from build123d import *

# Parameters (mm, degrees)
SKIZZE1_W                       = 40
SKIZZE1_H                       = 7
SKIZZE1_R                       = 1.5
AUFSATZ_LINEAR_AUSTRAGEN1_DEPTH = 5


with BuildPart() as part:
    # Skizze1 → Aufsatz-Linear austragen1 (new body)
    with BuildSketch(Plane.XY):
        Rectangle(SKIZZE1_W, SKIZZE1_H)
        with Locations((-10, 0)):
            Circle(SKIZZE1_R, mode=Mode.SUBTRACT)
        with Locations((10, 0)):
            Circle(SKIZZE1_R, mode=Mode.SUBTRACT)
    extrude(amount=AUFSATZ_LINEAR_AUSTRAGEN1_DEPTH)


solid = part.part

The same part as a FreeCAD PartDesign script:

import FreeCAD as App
import Part
import Sketcher
Q = App.Units.Quantity

doc = App.newDocument("Part")
body = doc.addObject("PartDesign::Body", "Body")

# Sketch on XY plane
sketch1 = body.newObject("Sketcher::SketchObject", "Sketch")
sketch1.AttachmentSupport = (doc.getObject("XY_Plane"), [""])
sketch1.MapMode = "FlatFace"
sketch1.addGeometry(Part.LineSegment(App.Vector(-20, 3.5, 0), App.Vector(-20, -3.5, 0)), False)
sketch1.addGeometry(Part.LineSegment(App.Vector(-20, -3.5, 0), App.Vector(20, -3.5, 0)), False)
sketch1.addGeometry(Part.LineSegment(App.Vector(20, -3.5, 0), App.Vector(20, 3.5, 0)), False)
sketch1.addGeometry(Part.LineSegment(App.Vector(20, 3.5, 0), App.Vector(-20, 3.5, 0)), False)
sketch1.addGeometry(Part.Circle(App.Vector(-10, 0, 0), App.Vector(0, 0, 1), 1.5), False)
sketch1.addGeometry(Part.Circle(App.Vector(10, 0, 0), App.Vector(0, 0, 1), 1.5), False)
sketch1.addConstraint(Sketcher.Constraint("Coincident", 0, 2, 1, 1))
sketch1.addConstraint(Sketcher.Constraint("Coincident", 1, 2, 2, 1))
sketch1.addConstraint(Sketcher.Constraint("Coincident", 2, 2, 3, 1))
sketch1.addConstraint(Sketcher.Constraint("Coincident", 3, 2, 0, 1))
sketch1.addConstraint(Sketcher.Constraint("Vertical", 0))
sketch1.addConstraint(Sketcher.Constraint("Horizontal", 1))
sketch1.addConstraint(Sketcher.Constraint("Vertical", 2))
sketch1.addConstraint(Sketcher.Constraint("Horizontal", 3))
sketch1.addConstraint(Sketcher.Constraint("Equal", 4, 5))
sketch1.addConstraint(Sketcher.Constraint("Symmetric", 4, 3, 5, 3, -1, 1))
sketch1.addConstraint(Sketcher.Constraint("Symmetric", 0, 2, 2, 2, -1, 1))
sketch1.addConstraint(Sketcher.Constraint("PointOnObject", 4, 3, -1))
sketch1.addConstraint(Sketcher.Constraint("Diameter", 4, Q("3 mm")))
sketch1.addConstraint(Sketcher.Constraint("DistanceX", 1, 1, 1, 2, Q("40 mm")))
sketch1.addConstraint(Sketcher.Constraint("DistanceY", 0, 2, 0, 1, Q("7 mm")))
sketch1.addConstraint(Sketcher.Constraint("DistanceX", 4, 3, -1, 1, Q("10 mm")))
pad1 = body.newObject("PartDesign::Pad", "Pad")
pad1.Profile = sketch1
pad1.Length = 5

doc.recompute()
